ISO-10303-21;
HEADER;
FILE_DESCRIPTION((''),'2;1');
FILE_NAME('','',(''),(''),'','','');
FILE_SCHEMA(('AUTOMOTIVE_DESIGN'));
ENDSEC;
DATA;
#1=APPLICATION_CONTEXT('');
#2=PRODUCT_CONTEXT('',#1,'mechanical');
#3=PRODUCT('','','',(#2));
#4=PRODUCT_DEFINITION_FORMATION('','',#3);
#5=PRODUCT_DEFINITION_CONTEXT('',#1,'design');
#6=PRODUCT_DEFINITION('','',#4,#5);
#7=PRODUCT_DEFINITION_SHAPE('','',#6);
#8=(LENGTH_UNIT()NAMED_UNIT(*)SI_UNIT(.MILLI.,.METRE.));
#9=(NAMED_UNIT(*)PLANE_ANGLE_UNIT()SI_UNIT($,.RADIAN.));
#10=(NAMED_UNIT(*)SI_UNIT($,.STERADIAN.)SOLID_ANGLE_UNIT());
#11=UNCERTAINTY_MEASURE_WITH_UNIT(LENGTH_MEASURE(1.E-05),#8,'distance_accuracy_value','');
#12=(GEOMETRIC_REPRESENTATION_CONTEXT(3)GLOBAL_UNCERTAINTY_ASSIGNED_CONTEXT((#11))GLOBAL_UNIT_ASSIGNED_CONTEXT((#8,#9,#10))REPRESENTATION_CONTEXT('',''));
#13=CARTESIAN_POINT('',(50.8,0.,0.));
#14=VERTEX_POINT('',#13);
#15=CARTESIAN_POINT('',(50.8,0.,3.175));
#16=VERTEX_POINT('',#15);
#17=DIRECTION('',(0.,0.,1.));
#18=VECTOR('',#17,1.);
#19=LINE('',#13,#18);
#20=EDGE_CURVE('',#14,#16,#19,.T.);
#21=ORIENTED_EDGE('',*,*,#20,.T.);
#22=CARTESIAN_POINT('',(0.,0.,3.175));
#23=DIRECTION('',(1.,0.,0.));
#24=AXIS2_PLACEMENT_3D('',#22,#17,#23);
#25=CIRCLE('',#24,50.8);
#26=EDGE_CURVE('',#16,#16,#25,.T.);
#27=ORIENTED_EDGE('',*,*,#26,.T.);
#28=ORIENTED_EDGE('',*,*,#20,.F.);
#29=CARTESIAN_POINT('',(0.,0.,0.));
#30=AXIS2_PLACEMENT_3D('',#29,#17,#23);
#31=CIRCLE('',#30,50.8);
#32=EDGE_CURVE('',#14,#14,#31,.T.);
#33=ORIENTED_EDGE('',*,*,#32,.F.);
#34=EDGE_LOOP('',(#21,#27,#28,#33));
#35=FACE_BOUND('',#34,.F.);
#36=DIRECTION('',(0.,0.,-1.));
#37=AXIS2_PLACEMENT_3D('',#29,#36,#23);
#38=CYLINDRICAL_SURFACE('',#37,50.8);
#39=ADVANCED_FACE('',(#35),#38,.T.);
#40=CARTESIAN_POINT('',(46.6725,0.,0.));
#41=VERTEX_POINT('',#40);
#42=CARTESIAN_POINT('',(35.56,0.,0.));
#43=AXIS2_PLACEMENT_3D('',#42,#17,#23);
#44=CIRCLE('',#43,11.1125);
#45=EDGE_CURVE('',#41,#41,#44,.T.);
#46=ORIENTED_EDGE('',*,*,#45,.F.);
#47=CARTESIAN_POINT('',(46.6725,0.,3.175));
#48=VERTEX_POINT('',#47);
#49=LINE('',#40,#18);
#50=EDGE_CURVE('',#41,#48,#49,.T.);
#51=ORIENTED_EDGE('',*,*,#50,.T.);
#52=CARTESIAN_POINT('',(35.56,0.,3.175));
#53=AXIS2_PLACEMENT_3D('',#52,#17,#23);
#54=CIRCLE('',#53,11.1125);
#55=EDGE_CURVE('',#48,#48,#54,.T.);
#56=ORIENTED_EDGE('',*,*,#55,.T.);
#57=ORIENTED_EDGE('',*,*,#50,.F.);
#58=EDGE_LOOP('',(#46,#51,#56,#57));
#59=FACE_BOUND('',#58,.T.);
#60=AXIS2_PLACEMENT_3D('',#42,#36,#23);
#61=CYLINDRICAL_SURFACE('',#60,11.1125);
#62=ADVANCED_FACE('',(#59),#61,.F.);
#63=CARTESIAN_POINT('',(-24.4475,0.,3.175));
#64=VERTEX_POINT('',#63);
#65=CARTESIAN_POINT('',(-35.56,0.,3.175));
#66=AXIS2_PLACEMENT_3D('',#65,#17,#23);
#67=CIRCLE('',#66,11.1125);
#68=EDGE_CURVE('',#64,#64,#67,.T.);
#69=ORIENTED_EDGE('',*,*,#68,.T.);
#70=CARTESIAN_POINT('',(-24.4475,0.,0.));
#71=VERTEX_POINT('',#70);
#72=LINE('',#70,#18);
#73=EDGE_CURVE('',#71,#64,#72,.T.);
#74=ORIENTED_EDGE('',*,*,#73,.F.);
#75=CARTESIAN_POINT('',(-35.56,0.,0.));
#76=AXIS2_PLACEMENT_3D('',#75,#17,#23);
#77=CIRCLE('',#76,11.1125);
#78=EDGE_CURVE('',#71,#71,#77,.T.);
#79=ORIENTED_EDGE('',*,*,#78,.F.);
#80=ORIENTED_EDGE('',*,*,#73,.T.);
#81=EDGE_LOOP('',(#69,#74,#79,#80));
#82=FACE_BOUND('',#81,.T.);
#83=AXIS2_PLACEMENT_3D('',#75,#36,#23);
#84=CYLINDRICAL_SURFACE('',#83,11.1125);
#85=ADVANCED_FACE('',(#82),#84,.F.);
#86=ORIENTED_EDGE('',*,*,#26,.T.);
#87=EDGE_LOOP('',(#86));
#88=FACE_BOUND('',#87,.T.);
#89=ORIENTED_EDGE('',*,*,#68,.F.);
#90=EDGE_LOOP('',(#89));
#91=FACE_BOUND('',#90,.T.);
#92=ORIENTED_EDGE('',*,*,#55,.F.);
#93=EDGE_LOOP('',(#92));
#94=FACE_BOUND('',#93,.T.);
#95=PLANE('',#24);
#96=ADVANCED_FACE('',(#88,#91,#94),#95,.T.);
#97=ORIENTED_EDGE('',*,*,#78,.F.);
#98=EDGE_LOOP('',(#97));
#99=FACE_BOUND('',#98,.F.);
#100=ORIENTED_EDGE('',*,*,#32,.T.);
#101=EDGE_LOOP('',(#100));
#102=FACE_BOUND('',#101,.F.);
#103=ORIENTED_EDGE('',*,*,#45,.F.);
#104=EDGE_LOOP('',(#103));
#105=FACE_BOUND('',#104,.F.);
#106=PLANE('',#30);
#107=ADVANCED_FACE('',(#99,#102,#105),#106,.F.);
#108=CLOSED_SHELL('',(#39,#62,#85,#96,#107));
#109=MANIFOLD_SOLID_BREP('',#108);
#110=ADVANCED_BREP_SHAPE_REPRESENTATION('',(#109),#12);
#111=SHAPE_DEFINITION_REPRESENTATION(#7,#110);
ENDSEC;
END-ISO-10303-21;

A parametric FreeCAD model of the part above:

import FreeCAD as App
import Part
import Sketcher

V = App.Vector
Q = App.Units.Quantity

doc = App.newDocument("Part")
body = doc.addObject("PartDesign::Body", "Body")

# Sketch on XY plane
sketch1 = body.newObject("Sketcher::SketchObject", "Sketch")
sketch1.AttachmentSupport = (doc.getObject("XY_Plane"), [""])
sketch1.MapMode = "FlatFace"
sketch1.addGeometry([
    Part.Circle(V(0, 0, 0), V(0, 0, 1), 50.8),
    Part.Circle(V(-35.56, 0, 0), V(0, 0, 1), 11.1125),
    Part.Circle(V(35.56, 0, 0), V(0, 0, 1), 11.1125),
], False)
sketch1.addConstraint([
    Sketcher.Constraint("Coincident", 0, 3, -1, 1),
    Sketcher.Constraint("Equal", 1, 2),
    Sketcher.Constraint("Symmetric", 1, 3, 2, 3, -1, 1),
    Sketcher.Constraint("PointOnObject", 1, 3, -1),
    Sketcher.Constraint("Diameter", 0, Q("4 in")),
    Sketcher.Constraint("Diameter", 1, Q("0.875 in")),
    Sketcher.Constraint("DistanceX", 1, 3, 2, 3, Q("2.8 in")),
])
pad1 = body.newObject("PartDesign::Pad", "Pad")
pad1.Profile = sketch1
pad1.Length = Q("0.125 in")

doc.recompute()
